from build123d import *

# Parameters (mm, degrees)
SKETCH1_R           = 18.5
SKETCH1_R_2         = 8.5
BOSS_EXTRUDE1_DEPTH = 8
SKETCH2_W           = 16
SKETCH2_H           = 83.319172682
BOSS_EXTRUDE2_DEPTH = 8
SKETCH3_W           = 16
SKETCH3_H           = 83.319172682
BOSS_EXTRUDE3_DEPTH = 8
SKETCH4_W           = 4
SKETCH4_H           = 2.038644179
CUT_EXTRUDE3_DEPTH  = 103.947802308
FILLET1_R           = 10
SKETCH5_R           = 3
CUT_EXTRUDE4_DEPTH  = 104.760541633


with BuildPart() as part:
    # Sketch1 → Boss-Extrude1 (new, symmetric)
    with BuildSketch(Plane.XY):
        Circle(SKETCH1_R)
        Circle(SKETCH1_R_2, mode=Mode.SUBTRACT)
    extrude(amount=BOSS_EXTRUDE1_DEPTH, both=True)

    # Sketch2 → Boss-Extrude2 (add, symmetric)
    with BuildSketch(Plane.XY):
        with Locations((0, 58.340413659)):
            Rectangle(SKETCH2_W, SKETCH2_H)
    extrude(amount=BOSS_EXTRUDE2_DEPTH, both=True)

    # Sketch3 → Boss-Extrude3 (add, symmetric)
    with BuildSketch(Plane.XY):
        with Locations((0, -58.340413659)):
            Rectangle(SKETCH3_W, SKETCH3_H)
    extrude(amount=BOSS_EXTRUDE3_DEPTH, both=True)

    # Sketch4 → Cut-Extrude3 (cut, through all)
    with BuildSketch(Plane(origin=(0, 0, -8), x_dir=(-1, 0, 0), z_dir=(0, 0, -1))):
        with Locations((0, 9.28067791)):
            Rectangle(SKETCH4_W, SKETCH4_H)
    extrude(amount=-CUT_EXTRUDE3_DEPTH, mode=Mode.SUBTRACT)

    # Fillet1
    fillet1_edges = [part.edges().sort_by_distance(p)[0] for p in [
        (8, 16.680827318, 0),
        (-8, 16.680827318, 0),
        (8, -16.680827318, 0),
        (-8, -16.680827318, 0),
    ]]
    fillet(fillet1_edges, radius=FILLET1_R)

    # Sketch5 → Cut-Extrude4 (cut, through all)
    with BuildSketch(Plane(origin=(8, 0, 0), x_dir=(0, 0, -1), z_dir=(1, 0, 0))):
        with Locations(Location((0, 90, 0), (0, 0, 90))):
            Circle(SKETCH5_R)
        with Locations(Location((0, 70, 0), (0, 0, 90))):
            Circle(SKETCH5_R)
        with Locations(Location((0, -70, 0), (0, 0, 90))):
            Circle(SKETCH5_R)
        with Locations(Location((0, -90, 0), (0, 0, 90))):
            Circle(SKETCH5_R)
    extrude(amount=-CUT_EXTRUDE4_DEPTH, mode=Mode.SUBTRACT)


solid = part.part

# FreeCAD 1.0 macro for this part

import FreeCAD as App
import Part
import Sketcher
from FreeCAD import Vector


def edges_at(feature, points):
    """Names of the edges that pass closest to the given points."""
    edges = feature.Shape.Edges
    near = lambda p: min(range(len(edges)), key=lambda i: edges[i].distToShape(Part.Vertex(*p))[0])
    return sorted({f"Edge{near(p) + 1}" for p in points})

doc = App.newDocument("Part")
body = doc.addObject("PartDesign::Body", "Body")

# Sketch on XY plane
sketch1 = body.newObject("Sketcher::SketchObject", "Sketch")
sketch1.AttachmentSupport = (doc.getObject("XY_Plane"), [""])
sketch1.MapMode = "FlatFace"
sketch1.addGeometry([
    Part.Circle(Vector(0, 0, 0), Vector(0, 0, 1), 18),
    Part.Circle(Vector(0, 0, 0), Vector(0, 0, 1), 8),
], False)
sketch1.addConstraint([
    Sketcher.Constraint("Coincident", 0, 3, -1, 1),
    Sketcher.Constraint("Coincident", 1, 3, -1, 1),
    Sketcher.Constraint("Diameter", 0, 37.0),
    Sketcher.Constraint("Diameter", 1, 17.0),
])
pad1 = body.newObject("PartDesign::Pad", "Pad")
pad1.Profile = sketch1
pad1.Length = 16
pad1.Midplane = True

# Sketch on XY plane
sketch2 = body.newObject("Sketcher::SketchObject", "Sketch001")
sketch2.AttachmentSupport = (doc.getObject("XY_Plane"), [""])
sketch2.MapMode = "FlatFace"
sketch2.addGeometry([
    Part.LineSegment(Vector(-8, 100, 0), Vector(-8, 17, 0)),
    Part.LineSegment(Vector(-8, 17, 0), Vector(8, 17, 0)),
    Part.LineSegment(Vector(8, 17, 0), Vector(8, 100, 0)),
    Part.LineSegment(Vector(8, 100, 0), Vector(-8, 100, 0)),
], False)
sketch2.addConstraint([
    Sketcher.Constraint("Coincident", 0, 2, 1, 1),
    Sketcher.Constraint("Coincident", 1, 2, 2, 1),
    Sketcher.Constraint("Coincident", 2, 2, 3, 1),
    Sketcher.Constraint("Coincident", 3, 2, 0, 1),
    Sketcher.Constraint("Vertical", 0),
    Sketcher.Constraint("Horizontal", 1),
    Sketcher.Constraint("Vertical", 2),
    Sketcher.Constraint("Horizontal", 3),
    Sketcher.Constraint("DistanceX", 1, 1, 1, 2, 16.0),
    Sketcher.Constraint("DistanceX", 0, 2, -1, 1, 8.0),
    Sketcher.Constraint("DistanceY", -1, 1, 2, 2, 100.0),
    Sketcher.Constraint("DistanceY", 0, 2, 0, 1, 83.319173),
])
pad2 = body.newObject("PartDesign::Pad", "Pad001")
pad2.Profile = sketch2
pad2.Length = 16
pad2.Midplane = True

# Sketch on XY plane
sketch3 = body.newObject("Sketcher::SketchObject", "Sketch002")
sketch3.AttachmentSupport = (doc.getObject("XY_Plane"), [""])
sketch3.MapMode = "FlatFace"
sketch3.addGeometry([
    Part.LineSegment(Vector(-8, -17, 0), Vector(-8, -100, 0)),
    Part.LineSegment(Vector(-8, -100, 0), Vector(8, -100, 0)),
    Part.LineSegment(Vector(8, -100, 0), Vector(8, -17, 0)),
    Part.LineSegment(Vector(8, -17, 0), Vector(-8, -17, 0)),
], False)
sketch3.addConstraint([
    Sketcher.Constraint("Coincident", 0, 2, 1, 1),
    Sketcher.Constraint("Coincident", 1, 2, 2, 1),
    Sketcher.Constraint("Coincident", 2, 2, 3, 1),
    Sketcher.Constraint("Coincident", 3, 2, 0, 1),
    Sketcher.Constraint("Vertical", 0),
    Sketcher.Constraint("Horizontal", 1),
    Sketcher.Constraint("Vertical", 2),
    Sketcher.Constraint("Horizontal", 3),
    Sketcher.Constraint("DistanceX", 1, 1, 1, 2, 16.0),
    Sketcher.Constraint("DistanceX", 0, 2, -1, 1, 8.0),
    Sketcher.Constraint("DistanceY", 0, 2, -1, 1, 100.0),
    Sketcher.Constraint("DistanceY", 0, 2, 0, 1, 83.319173),
])
pad3 = body.newObject("PartDesign::Pad", "Pad002")
pad3.Profile = sketch3
pad3.Length = 16
pad3.Midplane = True

# Sketch on XY plane
sketch4 = body.newObject("Sketcher::SketchObject", "Sketch003")
sketch4.AttachmentSupport = (doc.getObject("XY_Plane"), [""])
sketch4.MapMode = "FlatFace"
sketch4.AttachmentOffset = App.Placement(Vector(0, 0, -8), App.Rotation())
sketch4.addGeometry([
    Part.LineSegment(Vector(2, 10.3, 0), Vector(2, 8.3, 0)),
    Part.LineSegment(Vector(2, 8.3, 0), Vector(-2, 8.3, 0)),
    Part.LineSegment(Vector(-2, 8.3, 0), Vector(-2, 10.3, 0)),
    Part.LineSegment(Vector(-2, 10.3, 0), Vector(2, 10.3, 0)),
], False)
sketch4.addConstraint([
    Sketcher.Constraint("Coincident", 0, 2, 1, 1),
    Sketcher.Constraint("Coincident", 1, 2, 2, 1),
    Sketcher.Constraint("Coincident", 2, 2, 3, 1),
    Sketcher.Constraint("Coincident", 3, 2, 0, 1),
    Sketcher.Constraint("Vertical", 0),
    Sketcher.Constraint("Horizontal", 1),
    Sketcher.Constraint("Vertical", 2),
    Sketcher.Constraint("Horizontal", 3),
    Sketcher.Constraint("DistanceX", 1, 2, 1, 1, 4.0),
    Sketcher.Constraint("DistanceX", -1, 1, 0, 2, 2.0),
    Sketcher.Constraint("DistanceY", -1, 1, 2, 2, 10.3),
    Sketcher.Constraint("DistanceY", 0, 2, 0, 1, 2.038644),
])
pocket1 = body.newObject("PartDesign::Pocket", "Pocket")
pocket1.Profile = sketch4
pocket1.Type = "ThroughAll"
pocket1.Reversed = True
doc.recompute()

fillet = body.newObject("PartDesign::Fillet", "Fillet")
fillet.Base = (pocket1, edges_at(pocket1, [
    (8, 16.681, 0),
    (-8, 16.681, 0),
    (8, -16.681, 0),
    (-8, -16.681, 0),
]))
fillet.Radius = 10

# Sketch on YZ plane
sketch5 = body.newObject("Sketcher::SketchObject", "Sketch004")
sketch5.AttachmentSupport = (doc.getObject("YZ_Plane"), [""])
sketch5.MapMode = "FlatFace"
sketch5.AttachmentOffset = App.Placement(Vector(0, 0, 8), App.Rotation())
sketch5.addGeometry([
    Part.Circle(Vector(90, 0, 0), Vector(0, 0, 1), 3),
    Part.Circle(Vector(70, 0, 0), Vector(0, 0, 1), 3),
    Part.Circle(Vector(-70, 0, 0), Vector(0, 0, 1), 3),
    Part.Circle(Vector(-90, 0, 0), Vector(0, 0, 1), 3),
], False)
sketch5.addConstraint([
    Sketcher.Constraint("Equal", 0, 1),
    Sketcher.Constraint("Equal", 1, 2),
    Sketcher.Constraint("Equal", 2, 3),
    Sketcher.Constraint("Symmetric", 1, 3, 2, 3, -1, 1),
    Sketcher.Constraint("Symmetric", 0, 3, 3, 3, -1, 1),
    Sketcher.Constraint("PointOnObject", 0, 3, -1),
    Sketcher.Constraint("PointOnObject", 1, 3, -1),
    Sketcher.Constraint("Diameter", 0, 6.0),
    Sketcher.Constraint("DistanceX", -1, 1, 0, 3, 90.0),
    Sketcher.Constraint("DistanceX", -1, 1, 1, 3, 70.0),
])
pocket2 = body.newObject("PartDesign::Pocket", "Pocket001")
pocket2.Profile = sketch5
pocket2.Type = "ThroughAll"

doc.recompute()
